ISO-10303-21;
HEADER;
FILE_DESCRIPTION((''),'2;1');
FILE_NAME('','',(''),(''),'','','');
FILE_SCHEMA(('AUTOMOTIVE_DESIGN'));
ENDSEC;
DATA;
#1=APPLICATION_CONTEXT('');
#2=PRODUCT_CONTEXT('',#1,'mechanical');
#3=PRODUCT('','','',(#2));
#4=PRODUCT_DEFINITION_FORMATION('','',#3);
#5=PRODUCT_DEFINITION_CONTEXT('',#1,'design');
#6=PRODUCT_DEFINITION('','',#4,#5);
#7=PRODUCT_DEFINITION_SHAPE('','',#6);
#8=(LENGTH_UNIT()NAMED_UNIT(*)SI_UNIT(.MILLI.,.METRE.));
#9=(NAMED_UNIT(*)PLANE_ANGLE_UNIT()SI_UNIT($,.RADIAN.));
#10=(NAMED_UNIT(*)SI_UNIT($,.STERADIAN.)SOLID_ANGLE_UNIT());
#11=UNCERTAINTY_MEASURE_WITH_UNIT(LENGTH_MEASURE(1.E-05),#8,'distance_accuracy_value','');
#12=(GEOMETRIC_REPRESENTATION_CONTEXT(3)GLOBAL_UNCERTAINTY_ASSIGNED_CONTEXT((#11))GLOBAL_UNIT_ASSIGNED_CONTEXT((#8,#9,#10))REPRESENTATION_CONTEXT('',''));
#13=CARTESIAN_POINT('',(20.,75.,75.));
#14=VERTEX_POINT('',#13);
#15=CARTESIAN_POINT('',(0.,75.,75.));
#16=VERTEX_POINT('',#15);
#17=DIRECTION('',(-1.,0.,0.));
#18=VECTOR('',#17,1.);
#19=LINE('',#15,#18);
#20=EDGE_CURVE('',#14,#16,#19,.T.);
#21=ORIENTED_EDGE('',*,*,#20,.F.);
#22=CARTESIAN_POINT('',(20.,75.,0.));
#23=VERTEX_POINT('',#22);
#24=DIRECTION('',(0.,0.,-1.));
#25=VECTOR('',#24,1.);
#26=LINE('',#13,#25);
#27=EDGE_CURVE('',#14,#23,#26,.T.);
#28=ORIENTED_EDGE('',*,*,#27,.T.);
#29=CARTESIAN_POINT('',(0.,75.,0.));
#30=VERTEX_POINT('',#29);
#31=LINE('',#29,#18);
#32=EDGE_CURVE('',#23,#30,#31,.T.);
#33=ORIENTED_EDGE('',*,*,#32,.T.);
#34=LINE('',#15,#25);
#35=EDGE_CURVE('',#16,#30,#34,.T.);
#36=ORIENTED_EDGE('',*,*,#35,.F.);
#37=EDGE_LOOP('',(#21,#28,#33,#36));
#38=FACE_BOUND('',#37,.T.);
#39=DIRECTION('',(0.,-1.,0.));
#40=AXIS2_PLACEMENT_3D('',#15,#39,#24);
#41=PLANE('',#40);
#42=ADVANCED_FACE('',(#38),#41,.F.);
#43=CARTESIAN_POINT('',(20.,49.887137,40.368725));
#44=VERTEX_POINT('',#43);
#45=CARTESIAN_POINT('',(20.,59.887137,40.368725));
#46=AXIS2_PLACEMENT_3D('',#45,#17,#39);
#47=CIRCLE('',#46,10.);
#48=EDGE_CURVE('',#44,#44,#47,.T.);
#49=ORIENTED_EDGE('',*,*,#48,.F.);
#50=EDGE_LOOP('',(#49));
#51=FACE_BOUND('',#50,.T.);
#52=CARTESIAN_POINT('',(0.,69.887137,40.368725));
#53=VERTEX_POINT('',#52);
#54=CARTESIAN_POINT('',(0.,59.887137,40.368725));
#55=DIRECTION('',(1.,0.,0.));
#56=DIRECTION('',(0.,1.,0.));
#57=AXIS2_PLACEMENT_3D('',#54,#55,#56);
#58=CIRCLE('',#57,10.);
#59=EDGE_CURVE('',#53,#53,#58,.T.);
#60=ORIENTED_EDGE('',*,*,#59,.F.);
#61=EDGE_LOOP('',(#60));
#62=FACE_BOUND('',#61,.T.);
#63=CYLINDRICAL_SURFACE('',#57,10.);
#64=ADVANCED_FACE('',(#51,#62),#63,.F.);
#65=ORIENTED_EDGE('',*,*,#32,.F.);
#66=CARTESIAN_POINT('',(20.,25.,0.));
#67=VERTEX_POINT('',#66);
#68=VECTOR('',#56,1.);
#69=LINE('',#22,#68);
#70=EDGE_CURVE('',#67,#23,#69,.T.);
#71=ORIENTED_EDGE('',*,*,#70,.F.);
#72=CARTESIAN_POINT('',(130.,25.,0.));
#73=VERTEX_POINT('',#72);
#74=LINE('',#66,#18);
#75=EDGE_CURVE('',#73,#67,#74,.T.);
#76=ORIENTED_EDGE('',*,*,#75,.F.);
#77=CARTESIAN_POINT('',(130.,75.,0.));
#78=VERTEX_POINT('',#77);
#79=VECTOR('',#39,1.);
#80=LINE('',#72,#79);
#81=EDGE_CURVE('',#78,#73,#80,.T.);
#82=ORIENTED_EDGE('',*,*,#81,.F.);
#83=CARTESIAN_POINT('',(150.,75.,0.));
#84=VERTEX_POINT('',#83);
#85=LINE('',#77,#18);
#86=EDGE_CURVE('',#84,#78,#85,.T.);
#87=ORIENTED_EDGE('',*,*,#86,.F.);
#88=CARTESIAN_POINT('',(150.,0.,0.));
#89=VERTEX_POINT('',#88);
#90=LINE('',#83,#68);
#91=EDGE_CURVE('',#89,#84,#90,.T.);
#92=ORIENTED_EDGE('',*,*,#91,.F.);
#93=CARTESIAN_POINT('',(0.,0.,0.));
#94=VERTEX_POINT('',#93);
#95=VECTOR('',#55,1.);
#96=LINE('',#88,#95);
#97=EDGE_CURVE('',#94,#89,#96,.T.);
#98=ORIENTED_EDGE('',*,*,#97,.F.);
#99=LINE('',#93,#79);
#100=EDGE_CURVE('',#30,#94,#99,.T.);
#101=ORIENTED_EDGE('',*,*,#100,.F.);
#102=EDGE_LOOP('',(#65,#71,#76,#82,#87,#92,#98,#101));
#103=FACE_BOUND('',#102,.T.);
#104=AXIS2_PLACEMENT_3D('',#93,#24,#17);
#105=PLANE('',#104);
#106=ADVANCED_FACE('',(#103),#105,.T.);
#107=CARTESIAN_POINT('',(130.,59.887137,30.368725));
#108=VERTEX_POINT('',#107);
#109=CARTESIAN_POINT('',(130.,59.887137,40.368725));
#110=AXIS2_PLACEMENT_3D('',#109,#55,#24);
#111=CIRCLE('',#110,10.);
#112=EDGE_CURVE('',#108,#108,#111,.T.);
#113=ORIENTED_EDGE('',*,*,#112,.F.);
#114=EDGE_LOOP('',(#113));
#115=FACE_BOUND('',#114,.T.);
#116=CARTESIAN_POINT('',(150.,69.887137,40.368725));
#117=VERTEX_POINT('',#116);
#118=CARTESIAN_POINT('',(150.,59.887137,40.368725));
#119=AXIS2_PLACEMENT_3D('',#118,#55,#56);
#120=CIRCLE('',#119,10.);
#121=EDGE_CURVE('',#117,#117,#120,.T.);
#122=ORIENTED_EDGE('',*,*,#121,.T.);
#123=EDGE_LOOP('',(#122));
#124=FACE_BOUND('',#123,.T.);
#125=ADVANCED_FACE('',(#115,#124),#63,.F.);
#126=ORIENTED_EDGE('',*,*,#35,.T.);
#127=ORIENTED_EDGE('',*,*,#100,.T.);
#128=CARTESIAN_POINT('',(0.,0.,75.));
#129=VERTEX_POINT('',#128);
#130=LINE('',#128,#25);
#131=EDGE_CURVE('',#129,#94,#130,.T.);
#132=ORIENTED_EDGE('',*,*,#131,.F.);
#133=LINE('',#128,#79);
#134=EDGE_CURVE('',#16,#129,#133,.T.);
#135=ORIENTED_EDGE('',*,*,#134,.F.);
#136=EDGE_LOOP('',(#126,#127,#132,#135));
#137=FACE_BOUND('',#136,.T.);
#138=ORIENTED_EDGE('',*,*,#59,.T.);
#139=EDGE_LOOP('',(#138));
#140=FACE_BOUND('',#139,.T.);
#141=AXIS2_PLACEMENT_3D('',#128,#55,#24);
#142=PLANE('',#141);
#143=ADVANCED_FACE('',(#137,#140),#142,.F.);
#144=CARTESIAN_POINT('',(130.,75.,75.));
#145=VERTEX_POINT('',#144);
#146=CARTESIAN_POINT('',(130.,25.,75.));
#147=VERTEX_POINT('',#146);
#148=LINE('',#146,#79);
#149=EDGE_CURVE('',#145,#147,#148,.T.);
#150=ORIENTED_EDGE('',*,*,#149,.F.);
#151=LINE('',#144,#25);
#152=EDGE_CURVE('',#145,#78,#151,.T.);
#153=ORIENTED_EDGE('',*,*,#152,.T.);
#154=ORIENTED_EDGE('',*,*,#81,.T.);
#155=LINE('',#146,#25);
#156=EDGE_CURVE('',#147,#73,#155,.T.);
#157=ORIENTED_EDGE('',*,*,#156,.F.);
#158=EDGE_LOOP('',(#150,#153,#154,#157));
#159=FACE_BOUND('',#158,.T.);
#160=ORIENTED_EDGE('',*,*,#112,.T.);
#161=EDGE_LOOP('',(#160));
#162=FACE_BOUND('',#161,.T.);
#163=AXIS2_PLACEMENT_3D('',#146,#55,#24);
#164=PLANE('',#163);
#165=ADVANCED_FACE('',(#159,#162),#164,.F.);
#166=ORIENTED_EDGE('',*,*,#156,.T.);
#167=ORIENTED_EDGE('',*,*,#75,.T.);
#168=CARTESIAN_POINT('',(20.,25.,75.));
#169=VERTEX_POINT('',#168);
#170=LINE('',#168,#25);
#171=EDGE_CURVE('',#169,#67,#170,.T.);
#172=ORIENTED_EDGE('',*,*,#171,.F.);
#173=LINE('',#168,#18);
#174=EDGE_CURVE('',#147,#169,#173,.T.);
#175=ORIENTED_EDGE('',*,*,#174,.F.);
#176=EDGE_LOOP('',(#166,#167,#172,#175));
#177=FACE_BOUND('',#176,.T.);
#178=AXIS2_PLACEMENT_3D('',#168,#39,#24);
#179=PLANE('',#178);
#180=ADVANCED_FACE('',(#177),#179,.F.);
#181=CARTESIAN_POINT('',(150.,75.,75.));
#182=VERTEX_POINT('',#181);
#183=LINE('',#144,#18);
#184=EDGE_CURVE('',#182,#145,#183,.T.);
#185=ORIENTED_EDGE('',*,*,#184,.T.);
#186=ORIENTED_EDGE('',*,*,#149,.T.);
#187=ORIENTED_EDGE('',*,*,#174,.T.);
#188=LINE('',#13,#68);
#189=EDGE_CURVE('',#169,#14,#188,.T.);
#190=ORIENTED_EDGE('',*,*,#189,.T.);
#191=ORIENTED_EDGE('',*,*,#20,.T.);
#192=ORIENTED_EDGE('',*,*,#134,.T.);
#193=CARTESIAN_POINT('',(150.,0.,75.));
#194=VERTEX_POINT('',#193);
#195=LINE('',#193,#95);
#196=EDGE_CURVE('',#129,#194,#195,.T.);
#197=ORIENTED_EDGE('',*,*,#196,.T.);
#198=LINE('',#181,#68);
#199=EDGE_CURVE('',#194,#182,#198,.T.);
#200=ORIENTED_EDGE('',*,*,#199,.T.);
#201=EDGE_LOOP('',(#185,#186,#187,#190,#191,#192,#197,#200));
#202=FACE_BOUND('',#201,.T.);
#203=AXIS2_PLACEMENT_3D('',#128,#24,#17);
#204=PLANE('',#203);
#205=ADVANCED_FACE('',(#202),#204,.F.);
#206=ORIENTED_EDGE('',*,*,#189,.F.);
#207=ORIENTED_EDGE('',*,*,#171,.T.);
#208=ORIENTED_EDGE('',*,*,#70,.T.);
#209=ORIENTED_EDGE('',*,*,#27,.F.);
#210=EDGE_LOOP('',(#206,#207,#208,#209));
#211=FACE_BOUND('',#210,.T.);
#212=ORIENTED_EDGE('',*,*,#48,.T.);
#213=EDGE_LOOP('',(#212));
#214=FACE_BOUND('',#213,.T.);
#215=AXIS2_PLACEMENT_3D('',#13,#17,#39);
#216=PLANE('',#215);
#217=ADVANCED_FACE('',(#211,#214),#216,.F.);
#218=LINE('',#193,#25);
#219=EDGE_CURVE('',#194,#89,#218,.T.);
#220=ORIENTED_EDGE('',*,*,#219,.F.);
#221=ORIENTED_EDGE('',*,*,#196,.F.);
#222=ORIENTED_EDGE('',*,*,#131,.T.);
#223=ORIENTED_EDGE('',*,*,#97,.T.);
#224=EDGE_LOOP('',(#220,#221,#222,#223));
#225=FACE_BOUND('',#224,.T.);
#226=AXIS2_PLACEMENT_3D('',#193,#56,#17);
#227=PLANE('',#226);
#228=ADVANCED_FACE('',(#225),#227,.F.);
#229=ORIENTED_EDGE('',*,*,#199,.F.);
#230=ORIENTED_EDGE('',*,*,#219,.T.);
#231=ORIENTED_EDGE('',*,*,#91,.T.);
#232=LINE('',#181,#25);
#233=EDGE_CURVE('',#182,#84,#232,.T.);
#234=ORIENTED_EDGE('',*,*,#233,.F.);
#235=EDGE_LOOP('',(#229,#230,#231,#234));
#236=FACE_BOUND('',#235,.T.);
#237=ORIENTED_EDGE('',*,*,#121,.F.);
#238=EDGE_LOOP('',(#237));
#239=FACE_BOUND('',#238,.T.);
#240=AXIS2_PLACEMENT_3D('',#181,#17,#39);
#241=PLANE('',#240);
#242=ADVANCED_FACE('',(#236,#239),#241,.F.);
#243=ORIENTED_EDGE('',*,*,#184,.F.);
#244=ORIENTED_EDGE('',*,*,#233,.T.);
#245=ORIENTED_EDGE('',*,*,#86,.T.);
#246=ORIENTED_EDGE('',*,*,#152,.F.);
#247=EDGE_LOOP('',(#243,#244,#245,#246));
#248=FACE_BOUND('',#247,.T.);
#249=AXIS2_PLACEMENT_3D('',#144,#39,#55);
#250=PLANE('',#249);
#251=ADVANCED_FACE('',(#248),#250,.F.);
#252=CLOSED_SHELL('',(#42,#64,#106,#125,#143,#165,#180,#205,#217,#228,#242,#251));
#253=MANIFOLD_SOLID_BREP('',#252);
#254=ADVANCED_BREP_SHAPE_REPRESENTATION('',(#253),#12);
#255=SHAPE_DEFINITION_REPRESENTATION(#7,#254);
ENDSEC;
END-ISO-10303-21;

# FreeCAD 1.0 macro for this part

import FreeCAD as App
import Part
import Sketcher
Q = App.Units.Quantity


def add_polygon(sketch, points):
    """Adds a closed chain of lines whose ends are joined by coincident constraints."""
    first, n = sketch.GeometryCount, len(points)
    for a, b in zip(points, points[1:] + points[:1]):
        sketch.addGeometry(Part.LineSegment(App.Vector(*a, 0), App.Vector(*b, 0)), False)
    for i in range(n):
        sketch.addConstraint(Sketcher.Constraint("Coincident", first + i, 2, first + (i + 1) % n, 1))

doc = App.newDocument("Part")
body = doc.addObject("PartDesign::Body", "Body")

# Sketch on XY plane
sketch1 = doc.addObject("Sketcher::SketchObject", "Sketch")
body.addObject(sketch1)
sketch1.AttachmentSupport = (doc.XY_Plane, [""])
sketch1.MapMode = "FlatFace"
add_polygon(sketch1, [(0, 75), (0, 0), (150, 0), (150, 75), (130, 75), (130, 25), (20, 25), (20, 75)])  # lines 0-7
sketch1.addConstraint([
    Sketcher.Constraint("Vertical", 0),
    Sketcher.Constraint("Horizontal", 1),
    Sketcher.Constraint("Vertical", 2),
    Sketcher.Constraint("Horizontal", 3),
    Sketcher.Constraint("Vertical", 4),
    Sketcher.Constraint("Horizontal", 5),
    Sketcher.Constraint("Vertical", 6),
    Sketcher.Constraint("Horizontal", 7),
    Sketcher.Constraint("Coincident", 0, 2, -1, 1),
    Sketcher.Constraint("Horizontal", 3, 2, 6, 2),
    Sketcher.Constraint("Equal", 3, 7),
    Sketcher.Constraint("DistanceX", 1, 1, 1, 2, Q("150 mm")),
    Sketcher.Constraint("DistanceX", 3, 2, 3, 1, Q("20 mm")),
    Sketcher.Constraint("DistanceY", 0, 2, 0, 1, Q("75 mm")),
    Sketcher.Constraint("DistanceY", 4, 2, 4, 1, Q("50 mm")),
])
pad1 = doc.addObject("PartDesign::Pad", "Pad")
body.addObject(pad1)
pad1.Profile = sketch1
pad1.Length = 75

# Sketch on YZ plane
sketch2 = doc.addObject("Sketcher::SketchObject", "Sketch001")
body.addObject(sketch2)
sketch2.AttachmentSupport = (doc.YZ_Plane, [""])
sketch2.MapMode = "FlatFace"
sketch2.AttachmentOffset = App.Placement(App.Vector(0, 0, 150), App.Rotation())
sketch2.addGeometry(Part.Circle(App.Vector(60, 40, 0), App.Vector(0, 0, 1), 10), False)
sketch2.addConstraint([
    Sketcher.Constraint("Diameter", 0, Q("20 mm")),
    Sketcher.Constraint("DistanceX", -1, 1, 0, 3, Q("59.887137 mm")),
    Sketcher.Constraint("DistanceY", -1, 1, 0, 3, Q("40.368725 mm")),
])
pocket1 = doc.addObject("PartDesign::Pocket", "Pocket")
body.addObject(pocket1)
pocket1.Profile = sketch2
pocket1.Type = "ThroughAll"

doc.recompute()
